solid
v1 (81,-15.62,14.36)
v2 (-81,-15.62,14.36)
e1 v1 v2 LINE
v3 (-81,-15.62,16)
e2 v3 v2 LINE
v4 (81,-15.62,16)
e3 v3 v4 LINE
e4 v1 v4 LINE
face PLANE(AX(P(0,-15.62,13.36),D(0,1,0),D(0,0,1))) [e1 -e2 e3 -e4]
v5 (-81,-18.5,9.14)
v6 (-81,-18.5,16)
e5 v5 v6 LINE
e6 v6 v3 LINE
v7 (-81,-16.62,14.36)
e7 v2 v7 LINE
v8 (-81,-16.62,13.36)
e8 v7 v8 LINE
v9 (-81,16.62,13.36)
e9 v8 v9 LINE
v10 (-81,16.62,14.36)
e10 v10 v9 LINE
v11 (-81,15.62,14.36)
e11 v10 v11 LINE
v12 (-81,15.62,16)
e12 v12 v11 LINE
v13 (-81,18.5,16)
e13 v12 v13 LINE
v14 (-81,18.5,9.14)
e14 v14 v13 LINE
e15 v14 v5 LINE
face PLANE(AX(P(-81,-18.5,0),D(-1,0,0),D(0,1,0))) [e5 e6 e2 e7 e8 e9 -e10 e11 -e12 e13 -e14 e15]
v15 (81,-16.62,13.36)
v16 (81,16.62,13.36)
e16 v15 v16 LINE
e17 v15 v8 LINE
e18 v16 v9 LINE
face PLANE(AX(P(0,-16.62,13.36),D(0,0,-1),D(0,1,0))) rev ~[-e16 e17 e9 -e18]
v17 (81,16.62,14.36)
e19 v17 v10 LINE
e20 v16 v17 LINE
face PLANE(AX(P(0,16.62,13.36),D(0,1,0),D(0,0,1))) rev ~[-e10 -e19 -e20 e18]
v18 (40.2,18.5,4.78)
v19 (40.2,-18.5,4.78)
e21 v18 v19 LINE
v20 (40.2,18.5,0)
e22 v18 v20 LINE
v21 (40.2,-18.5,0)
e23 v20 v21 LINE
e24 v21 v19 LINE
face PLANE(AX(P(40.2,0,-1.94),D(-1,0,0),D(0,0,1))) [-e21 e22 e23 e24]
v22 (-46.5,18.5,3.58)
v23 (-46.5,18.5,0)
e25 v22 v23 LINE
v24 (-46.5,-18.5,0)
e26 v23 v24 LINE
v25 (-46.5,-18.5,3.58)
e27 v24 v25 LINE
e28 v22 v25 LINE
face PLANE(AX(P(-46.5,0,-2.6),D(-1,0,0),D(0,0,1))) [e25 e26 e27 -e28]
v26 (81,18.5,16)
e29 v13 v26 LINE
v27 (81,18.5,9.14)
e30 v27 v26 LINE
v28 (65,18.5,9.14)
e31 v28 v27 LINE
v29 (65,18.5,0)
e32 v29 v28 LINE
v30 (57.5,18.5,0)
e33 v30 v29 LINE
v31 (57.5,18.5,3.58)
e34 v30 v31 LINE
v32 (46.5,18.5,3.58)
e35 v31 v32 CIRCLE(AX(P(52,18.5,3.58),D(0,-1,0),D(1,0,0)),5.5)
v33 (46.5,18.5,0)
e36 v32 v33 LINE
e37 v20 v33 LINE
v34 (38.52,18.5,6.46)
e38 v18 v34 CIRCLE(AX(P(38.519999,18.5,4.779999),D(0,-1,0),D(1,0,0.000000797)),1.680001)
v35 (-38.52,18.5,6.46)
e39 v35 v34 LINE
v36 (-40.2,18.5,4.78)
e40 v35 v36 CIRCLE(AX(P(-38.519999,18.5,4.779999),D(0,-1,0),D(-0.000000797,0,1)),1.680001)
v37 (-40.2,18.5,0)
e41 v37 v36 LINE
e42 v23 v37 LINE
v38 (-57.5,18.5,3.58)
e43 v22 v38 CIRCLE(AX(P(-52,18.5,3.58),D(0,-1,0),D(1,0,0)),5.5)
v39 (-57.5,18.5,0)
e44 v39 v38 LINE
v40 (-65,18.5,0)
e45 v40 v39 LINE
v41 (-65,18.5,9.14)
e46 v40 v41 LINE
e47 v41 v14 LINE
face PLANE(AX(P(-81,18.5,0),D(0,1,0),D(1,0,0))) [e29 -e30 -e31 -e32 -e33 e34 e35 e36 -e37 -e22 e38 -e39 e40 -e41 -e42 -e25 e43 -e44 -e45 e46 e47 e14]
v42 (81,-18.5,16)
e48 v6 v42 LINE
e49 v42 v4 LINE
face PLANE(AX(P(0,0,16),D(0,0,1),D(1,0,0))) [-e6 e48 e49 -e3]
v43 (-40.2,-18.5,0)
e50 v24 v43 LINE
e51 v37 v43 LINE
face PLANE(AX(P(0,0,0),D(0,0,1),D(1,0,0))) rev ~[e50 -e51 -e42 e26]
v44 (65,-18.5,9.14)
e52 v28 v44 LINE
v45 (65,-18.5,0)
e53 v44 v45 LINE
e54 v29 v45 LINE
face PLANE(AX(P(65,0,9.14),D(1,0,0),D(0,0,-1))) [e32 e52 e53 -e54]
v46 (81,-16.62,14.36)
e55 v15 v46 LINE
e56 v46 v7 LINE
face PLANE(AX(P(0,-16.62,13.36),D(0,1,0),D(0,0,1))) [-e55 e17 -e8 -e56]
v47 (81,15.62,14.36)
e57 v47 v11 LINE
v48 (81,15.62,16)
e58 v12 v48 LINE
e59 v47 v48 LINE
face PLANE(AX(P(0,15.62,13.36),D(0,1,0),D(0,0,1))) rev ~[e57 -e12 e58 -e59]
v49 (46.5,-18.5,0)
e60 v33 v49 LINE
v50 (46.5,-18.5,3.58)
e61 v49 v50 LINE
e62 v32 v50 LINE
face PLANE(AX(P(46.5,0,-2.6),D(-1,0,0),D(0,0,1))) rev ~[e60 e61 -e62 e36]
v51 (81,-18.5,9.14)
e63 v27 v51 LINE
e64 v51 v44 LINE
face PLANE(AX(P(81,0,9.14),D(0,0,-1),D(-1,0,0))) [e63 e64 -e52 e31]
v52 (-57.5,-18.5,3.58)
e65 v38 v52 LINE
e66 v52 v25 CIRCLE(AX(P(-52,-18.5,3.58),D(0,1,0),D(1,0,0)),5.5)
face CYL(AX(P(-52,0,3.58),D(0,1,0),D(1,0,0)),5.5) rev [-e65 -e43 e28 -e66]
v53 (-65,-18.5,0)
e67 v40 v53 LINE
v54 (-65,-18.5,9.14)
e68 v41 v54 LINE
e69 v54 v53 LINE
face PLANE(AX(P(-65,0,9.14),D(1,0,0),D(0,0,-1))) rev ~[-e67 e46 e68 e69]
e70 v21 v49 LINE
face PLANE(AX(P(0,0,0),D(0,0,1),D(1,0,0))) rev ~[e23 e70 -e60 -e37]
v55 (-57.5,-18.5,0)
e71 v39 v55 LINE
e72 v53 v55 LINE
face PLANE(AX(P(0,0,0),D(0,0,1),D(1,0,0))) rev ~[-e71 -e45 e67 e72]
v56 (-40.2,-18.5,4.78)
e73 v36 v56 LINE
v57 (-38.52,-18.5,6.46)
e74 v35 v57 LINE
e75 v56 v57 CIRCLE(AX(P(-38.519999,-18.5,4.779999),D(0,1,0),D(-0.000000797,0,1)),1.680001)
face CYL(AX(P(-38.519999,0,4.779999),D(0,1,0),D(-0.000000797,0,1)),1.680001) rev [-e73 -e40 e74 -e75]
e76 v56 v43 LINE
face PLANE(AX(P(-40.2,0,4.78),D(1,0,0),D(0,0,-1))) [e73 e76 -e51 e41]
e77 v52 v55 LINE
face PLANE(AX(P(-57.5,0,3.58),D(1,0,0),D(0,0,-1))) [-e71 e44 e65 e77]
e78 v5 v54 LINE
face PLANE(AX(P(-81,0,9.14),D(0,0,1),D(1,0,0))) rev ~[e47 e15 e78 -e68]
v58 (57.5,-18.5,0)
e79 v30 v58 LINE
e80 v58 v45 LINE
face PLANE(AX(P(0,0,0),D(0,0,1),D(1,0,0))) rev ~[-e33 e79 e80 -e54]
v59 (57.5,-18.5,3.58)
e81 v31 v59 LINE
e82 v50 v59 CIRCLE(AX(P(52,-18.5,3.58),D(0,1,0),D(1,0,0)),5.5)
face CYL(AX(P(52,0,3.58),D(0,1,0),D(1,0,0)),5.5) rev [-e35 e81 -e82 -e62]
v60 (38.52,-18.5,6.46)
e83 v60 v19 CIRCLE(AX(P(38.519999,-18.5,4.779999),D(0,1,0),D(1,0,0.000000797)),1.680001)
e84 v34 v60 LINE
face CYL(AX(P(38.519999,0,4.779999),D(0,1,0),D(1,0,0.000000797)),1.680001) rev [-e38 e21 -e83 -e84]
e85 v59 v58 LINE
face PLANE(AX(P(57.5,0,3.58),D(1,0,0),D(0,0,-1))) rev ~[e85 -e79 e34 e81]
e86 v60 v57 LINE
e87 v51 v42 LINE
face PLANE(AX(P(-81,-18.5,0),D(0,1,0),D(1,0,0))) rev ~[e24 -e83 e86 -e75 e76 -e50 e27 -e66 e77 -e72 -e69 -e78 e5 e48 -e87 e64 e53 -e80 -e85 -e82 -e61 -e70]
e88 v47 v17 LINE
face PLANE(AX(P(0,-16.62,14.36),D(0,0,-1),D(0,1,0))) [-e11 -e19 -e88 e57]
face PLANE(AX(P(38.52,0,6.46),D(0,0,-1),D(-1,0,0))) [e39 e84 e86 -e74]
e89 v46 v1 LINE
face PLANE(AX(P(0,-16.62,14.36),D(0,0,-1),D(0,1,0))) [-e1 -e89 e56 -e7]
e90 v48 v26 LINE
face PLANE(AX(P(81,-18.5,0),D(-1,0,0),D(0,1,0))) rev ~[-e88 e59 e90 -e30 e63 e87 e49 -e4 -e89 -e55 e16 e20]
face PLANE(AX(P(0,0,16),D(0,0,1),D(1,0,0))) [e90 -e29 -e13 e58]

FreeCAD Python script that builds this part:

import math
import FreeCAD as App
import Part
import Sketcher

V = App.Vector


def add_polygon(sketch, points):
    """Adds a closed chain of lines whose ends are joined by coincident constraints."""
    first, n = sketch.GeometryCount, len(points)
    for a, b in zip(points, points[1:] + points[:1]):
        sketch.addGeometry(Part.LineSegment(App.Vector(*a, 0), App.Vector(*b, 0)), False)
    for i in range(n):
        sketch.addConstraint(Sketcher.Constraint("Coincident", first + i, 2, first + (i + 1) % n, 1))

doc = App.newDocument("Part")
body = doc.addObject("PartDesign::Body", "Body")

sketch1 = body.newObject("Sketcher::SketchObject", "Sketch")
sketch1.AttachmentSupport = (doc.getObject("XY_Plane"), [""])
sketch1.MapMode = "FlatFace"
add_polygon(sketch1, [(-81, 18.5), (-81, -18.5), (81, -18.5), (81, 18.5)])
sketch1.addConstraint([
    Sketcher.Constraint("Vertical", 0),
    Sketcher.Constraint("Horizontal", 1),
    Sketcher.Constraint("Vertical", 2),
    Sketcher.Constraint("Horizontal", 3),
    Sketcher.Constraint("Symmetric", 0, 2, 2, 2, -1, 1),
    Sketcher.Constraint("DistanceX", 1, 1, 1, 2, 162.0),
    Sketcher.Constraint("DistanceY", 0, 2, 0, 1, 37.0),
])
pad1 = body.newObject("PartDesign::Pad", "Pad")
pad1.Profile = sketch1
pad1.Length = 16

sketch2 = body.newObject("Sketcher::SketchObject", "Sketch001")
sketch2.AttachmentSupport = (doc.getObject("XZ_Plane"), [""])
sketch2.MapMode = "FlatFace"
add_polygon(sketch2, [(81, 16), (81, 9.14), (65, 9.14), (65, -1.45), (83.75, -1.45), (83.75, 16)])
sketch2.addConstraint([
    Sketcher.Constraint("Vertical", 0),
    Sketcher.Constraint("Horizontal", 1),
    Sketcher.Constraint("Vertical", 2),
    Sketcher.Constraint("Horizontal", 3),
    Sketcher.Constraint("Vertical", 4),
    Sketcher.Constraint("Horizontal", 5),
    Sketcher.Constraint("DistanceX", 1, 2, 1, 1, 16.0),
    Sketcher.Constraint("DistanceX", -1, 1, 0, 2, 81.0),
    Sketcher.Constraint("DistanceY", -1, 1, 4, 2, 16.0),
    Sketcher.Constraint("DistanceX", 3, 1, 3, 2, 18.75),
    Sketcher.Constraint("DistanceY", 0, 2, 0, 1, 6.86),
    Sketcher.Constraint("DistanceY", 2, 2, 2, 1, 10.59),
])
pocket1 = body.newObject("PartDesign::Pocket", "Pocket")
pocket1.Profile = sketch2
pocket1.Type = "ThroughAll"
pocket1.Midplane = True

sketch3 = body.newObject("Sketcher::SketchObject", "Sketch002")
sketch3.AttachmentSupport = (doc.getObject("XZ_Plane"), [""])
sketch3.MapMode = "FlatFace"
add_polygon(sketch3, [(-81, 9.14), (-81, 16), (-83.75, 16), (-83.75, -1.45), (-65, -1.45), (-65, 9.14)])
sketch3.addConstraint([
    Sketcher.Constraint("Vertical", 0),
    Sketcher.Constraint("Horizontal", 1),
    Sketcher.Constraint("Vertical", 2),
    Sketcher.Constraint("Horizontal", 3),
    Sketcher.Constraint("Vertical", 4),
    Sketcher.Constraint("Horizontal", 5),
    Sketcher.Constraint("DistanceX", 5, 2, 5, 1, 16.0),
    Sketcher.Constraint("DistanceX", 0, 2, -1, 1, 81.0),
    Sketcher.Constraint("DistanceY", -1, 1, 0, 2, 16.0),
    Sketcher.Constraint("DistanceX", 1, 2, 1, 1, 2.75),
    Sketcher.Constraint("DistanceY", 0, 1, 0, 2, 6.86),
    Sketcher.Constraint("DistanceY", 2, 2, 2, 1, 17.45),
])
pocket2 = body.newObject("PartDesign::Pocket", "Pocket001")
pocket2.Profile = sketch3
pocket2.Type = "ThroughAll"
pocket2.Midplane = True

sketch4 = body.newObject("Sketcher::SketchObject", "Sketch003")
sketch4.AttachmentSupport = (doc.getObject("XZ_Plane"), [""])
sketch4.MapMode = "FlatFace"
sketch4.addGeometry([
    Part.LineSegment(V(57.5, -2.6, 0), V(57.5, 3.58, 0)),
    Part.ArcOfCircle(Part.Circle(V(52, 3.58, 0), V(0, 0, 1), 5.5), math.radians(0), math.radians(180)),
    Part.LineSegment(V(46.5, 3.58, 0), V(46.5, -2.6, 0)),
    Part.LineSegment(V(46.5, -2.6, 0), V(57.5, -2.6, 0)),
], False)
sketch4.addConstraint([
    Sketcher.Constraint("Tangent", 0, 2, 1, 1),
    Sketcher.Constraint("Tangent", 1, 2, 2, 1),
    Sketcher.Constraint("Coincident", 2, 2, 3, 1),
    Sketcher.Constraint("Coincident", 3, 2, 0, 1),
    Sketcher.Constraint("Vertical", 0),
    Sketcher.Constraint("Vertical", 2),
    Sketcher.Constraint("Horizontal", 3),
    Sketcher.Constraint("Radius", 1, 5.5),
    Sketcher.Constraint("DistanceX", -1, 1, 1, 3, 52.0),
    Sketcher.Constraint("DistanceY", 0, 1, 0, 2, 6.18),
    Sketcher.Constraint("DistanceY", 2, 2, -1, 1, 2.6),
])
pocket3 = body.newObject("PartDesign::Pocket", "Pocket002")
pocket3.Profile = sketch4
pocket3.Type = "ThroughAll"
pocket3.Midplane = True

sketch5 = body.newObject("Sketcher::SketchObject", "Sketch004")
sketch5.AttachmentSupport = (doc.getObject("XZ_Plane"), [""])
sketch5.MapMode = "FlatFace"
sketch5.addGeometry([
    Part.LineSegment(V(-57.5, 3.58, 0), V(-57.5, -2.6, 0)),
    Part.LineSegment(V(-57.5, -2.6, 0), V(-46.5, -2.6, 0)),
    Part.LineSegment(V(-46.5, -2.6, 0), V(-46.5, 3.58, 0)),
    Part.ArcOfCircle(Part.Circle(V(-52, 3.58, 0), V(0, 0, 1), 5.5), math.radians(0), math.radians(180)),
], False)
sketch5.addConstraint([
    Sketcher.Constraint("Coincident", 0, 2, 1, 1),
    Sketcher.Constraint("Coincident", 1, 2, 2, 1),
    Sketcher.Constraint("Tangent", 2, 2, 3, 1),
    Sketcher.Constraint("Tangent", 3, 2, 0, 1),
    Sketcher.Constraint("Vertical", 0),
    Sketcher.Constraint("Horizontal", 1),
    Sketcher.Constraint("Vertical", 2),
    Sketcher.Constraint("Radius", 3, 5.5),
    Sketcher.Constraint("DistanceX", 3, 3, -1, 1, 52.0),
    Sketcher.Constraint("DistanceY", 0, 2, 0, 1, 6.18),
    Sketcher.Constraint("DistanceY", 0, 2, -1, 1, 2.6),
])
pocket4 = body.newObject("PartDesign::Pocket", "Pocket003")
pocket4.Profile = sketch5
pocket4.Type = "ThroughAll"
pocket4.Midplane = True

sketch6 = body.newObject("Sketcher::SketchObject", "Sketch005")
sketch6.AttachmentSupport = (doc.getObject("XZ_Plane"), [""])
sketch6.MapMode = "FlatFace"
sketch6.addGeometry([
    Part.LineSegment(V(-40.2, 4.78, 0), V(-40.2, -1.94, 0)),
    Part.LineSegment(V(-40.2, -1.94, 0), V(40.2, -1.94, 0)),
    Part.LineSegment(V(40.2, -1.94, 0), V(40.2, 4.78, 0)),
    Part.ArcOfCircle(Part.Circle(V(38.519999, 4.779999, 0), V(0, 0, 1), 1.680001), math.radians(0.000046), math.radians(89.999954)),
    Part.LineSegment(V(38.52, 6.46, 0), V(-38.52, 6.46, 0)),
    Part.ArcOfCircle(Part.Circle(V(-38.519999, 4.779999, 0), V(0, 0, 1), 1.680001), math.radians(90.000046), math.radians(179.999954)),
], False)
sketch6.addConstraint([
    Sketcher.Constraint("Coincident", 0, 2, 1, 1),
    Sketcher.Constraint("Coincident", 1, 2, 2, 1),
    Sketcher.Constraint("Tangent", 2, 2, 3, 1),
    Sketcher.Constraint("Tangent", 3, 2, 4, 1),
    Sketcher.Constraint("Tangent", 4, 2, 5, 1),
    Sketcher.Constraint("Tangent", 5, 2, 0, 1),
    Sketcher.Constraint("Vertical", 0),
    Sketcher.Constraint("Horizontal", 1),
    Sketcher.Constraint("Vertical", 2),
    Sketcher.Constraint("Horizontal", 4),
    Sketcher.Constraint("Equal", 3, 5),
    Sketcher.Constraint("Radius", 3, 1.680001),
    Sketcher.Constraint("DistanceX", 1, 1, 1, 2, 80.4),
    Sketcher.Constraint("DistanceY", 0, 2, 0, 1, 6.72),
    Sketcher.Constraint("DistanceX", 0, 2, -1, 1, 40.2),
    Sketcher.Constraint("DistanceY", -1, 1, 3, 3, 4.779999),
])
pocket5 = body.newObject("PartDesign::Pocket", "Pocket004")
pocket5.Profile = sketch6
pocket5.Type = "ThroughAll"
pocket5.Midplane = True

sketch7 = body.newObject("Sketcher::SketchObject", "Sketch006")
sketch7.AttachmentSupport = (doc.getObject("YZ_Plane"), [""])
sketch7.MapMode = "FlatFace"
add_polygon(sketch7, [(-15.62, 17.28), (-15.62, 13.36), (15.62, 13.36), (15.62, 17.28)])
sketch7.addConstraint([
    Sketcher.Constraint("Vertical", 0),
    Sketcher.Constraint("Horizontal", 1),
    Sketcher.Constraint("Vertical", 2),
    Sketcher.Constraint("Horizontal", 3),
    Sketcher.Constraint("DistanceX", 1, 1, 1, 2, 31.24),
    Sketcher.Constraint("DistanceY", 0, 2, 0, 1, 3.92),
    Sketcher.Constraint("DistanceX", 0, 2, -1, 1, 15.62),
    Sketcher.Constraint("DistanceY", -1, 1, 0, 2, 13.36),
])
pocket6 = body.newObject("PartDesign::Pocket", "Pocket005")
pocket6.Profile = sketch7
pocket6.Type = "ThroughAll"
pocket6.Midplane = True

sketch8 = body.newObject("Sketcher::SketchObject", "Sketch007")
sketch8.AttachmentSupport = (doc.getObject("YZ_Plane"), [""])
sketch8.MapMode = "FlatFace"
add_polygon(sketch8, [(-16.62, 14.36), (-16.62, 13.36), (16.62, 13.36), (16.62, 14.36)])
sketch8.addConstraint([
    Sketcher.Constraint("Vertical", 0),
    Sketcher.Constraint("Horizontal", 1),
    Sketcher.Constraint("Vertical", 2),
    Sketcher.Constraint("Horizontal", 3),
    Sketcher.Constraint("DistanceY", 0, 2, 0, 1, 1.0),
    Sketcher.Constraint("DistanceX", 1, 1, 1, 2, 33.24),
    Sketcher.Constraint("DistanceX", 0, 2, -1, 1, 16.62),
    Sketcher.Constraint("DistanceY", -1, 1, 0, 2, 13.36),
])
pocket7 = body.newObject("PartDesign::Pocket", "Pocket006")
pocket7.Profile = sketch8
pocket7.Type = "ThroughAll"
pocket7.Midplane = True

doc.recompute()
